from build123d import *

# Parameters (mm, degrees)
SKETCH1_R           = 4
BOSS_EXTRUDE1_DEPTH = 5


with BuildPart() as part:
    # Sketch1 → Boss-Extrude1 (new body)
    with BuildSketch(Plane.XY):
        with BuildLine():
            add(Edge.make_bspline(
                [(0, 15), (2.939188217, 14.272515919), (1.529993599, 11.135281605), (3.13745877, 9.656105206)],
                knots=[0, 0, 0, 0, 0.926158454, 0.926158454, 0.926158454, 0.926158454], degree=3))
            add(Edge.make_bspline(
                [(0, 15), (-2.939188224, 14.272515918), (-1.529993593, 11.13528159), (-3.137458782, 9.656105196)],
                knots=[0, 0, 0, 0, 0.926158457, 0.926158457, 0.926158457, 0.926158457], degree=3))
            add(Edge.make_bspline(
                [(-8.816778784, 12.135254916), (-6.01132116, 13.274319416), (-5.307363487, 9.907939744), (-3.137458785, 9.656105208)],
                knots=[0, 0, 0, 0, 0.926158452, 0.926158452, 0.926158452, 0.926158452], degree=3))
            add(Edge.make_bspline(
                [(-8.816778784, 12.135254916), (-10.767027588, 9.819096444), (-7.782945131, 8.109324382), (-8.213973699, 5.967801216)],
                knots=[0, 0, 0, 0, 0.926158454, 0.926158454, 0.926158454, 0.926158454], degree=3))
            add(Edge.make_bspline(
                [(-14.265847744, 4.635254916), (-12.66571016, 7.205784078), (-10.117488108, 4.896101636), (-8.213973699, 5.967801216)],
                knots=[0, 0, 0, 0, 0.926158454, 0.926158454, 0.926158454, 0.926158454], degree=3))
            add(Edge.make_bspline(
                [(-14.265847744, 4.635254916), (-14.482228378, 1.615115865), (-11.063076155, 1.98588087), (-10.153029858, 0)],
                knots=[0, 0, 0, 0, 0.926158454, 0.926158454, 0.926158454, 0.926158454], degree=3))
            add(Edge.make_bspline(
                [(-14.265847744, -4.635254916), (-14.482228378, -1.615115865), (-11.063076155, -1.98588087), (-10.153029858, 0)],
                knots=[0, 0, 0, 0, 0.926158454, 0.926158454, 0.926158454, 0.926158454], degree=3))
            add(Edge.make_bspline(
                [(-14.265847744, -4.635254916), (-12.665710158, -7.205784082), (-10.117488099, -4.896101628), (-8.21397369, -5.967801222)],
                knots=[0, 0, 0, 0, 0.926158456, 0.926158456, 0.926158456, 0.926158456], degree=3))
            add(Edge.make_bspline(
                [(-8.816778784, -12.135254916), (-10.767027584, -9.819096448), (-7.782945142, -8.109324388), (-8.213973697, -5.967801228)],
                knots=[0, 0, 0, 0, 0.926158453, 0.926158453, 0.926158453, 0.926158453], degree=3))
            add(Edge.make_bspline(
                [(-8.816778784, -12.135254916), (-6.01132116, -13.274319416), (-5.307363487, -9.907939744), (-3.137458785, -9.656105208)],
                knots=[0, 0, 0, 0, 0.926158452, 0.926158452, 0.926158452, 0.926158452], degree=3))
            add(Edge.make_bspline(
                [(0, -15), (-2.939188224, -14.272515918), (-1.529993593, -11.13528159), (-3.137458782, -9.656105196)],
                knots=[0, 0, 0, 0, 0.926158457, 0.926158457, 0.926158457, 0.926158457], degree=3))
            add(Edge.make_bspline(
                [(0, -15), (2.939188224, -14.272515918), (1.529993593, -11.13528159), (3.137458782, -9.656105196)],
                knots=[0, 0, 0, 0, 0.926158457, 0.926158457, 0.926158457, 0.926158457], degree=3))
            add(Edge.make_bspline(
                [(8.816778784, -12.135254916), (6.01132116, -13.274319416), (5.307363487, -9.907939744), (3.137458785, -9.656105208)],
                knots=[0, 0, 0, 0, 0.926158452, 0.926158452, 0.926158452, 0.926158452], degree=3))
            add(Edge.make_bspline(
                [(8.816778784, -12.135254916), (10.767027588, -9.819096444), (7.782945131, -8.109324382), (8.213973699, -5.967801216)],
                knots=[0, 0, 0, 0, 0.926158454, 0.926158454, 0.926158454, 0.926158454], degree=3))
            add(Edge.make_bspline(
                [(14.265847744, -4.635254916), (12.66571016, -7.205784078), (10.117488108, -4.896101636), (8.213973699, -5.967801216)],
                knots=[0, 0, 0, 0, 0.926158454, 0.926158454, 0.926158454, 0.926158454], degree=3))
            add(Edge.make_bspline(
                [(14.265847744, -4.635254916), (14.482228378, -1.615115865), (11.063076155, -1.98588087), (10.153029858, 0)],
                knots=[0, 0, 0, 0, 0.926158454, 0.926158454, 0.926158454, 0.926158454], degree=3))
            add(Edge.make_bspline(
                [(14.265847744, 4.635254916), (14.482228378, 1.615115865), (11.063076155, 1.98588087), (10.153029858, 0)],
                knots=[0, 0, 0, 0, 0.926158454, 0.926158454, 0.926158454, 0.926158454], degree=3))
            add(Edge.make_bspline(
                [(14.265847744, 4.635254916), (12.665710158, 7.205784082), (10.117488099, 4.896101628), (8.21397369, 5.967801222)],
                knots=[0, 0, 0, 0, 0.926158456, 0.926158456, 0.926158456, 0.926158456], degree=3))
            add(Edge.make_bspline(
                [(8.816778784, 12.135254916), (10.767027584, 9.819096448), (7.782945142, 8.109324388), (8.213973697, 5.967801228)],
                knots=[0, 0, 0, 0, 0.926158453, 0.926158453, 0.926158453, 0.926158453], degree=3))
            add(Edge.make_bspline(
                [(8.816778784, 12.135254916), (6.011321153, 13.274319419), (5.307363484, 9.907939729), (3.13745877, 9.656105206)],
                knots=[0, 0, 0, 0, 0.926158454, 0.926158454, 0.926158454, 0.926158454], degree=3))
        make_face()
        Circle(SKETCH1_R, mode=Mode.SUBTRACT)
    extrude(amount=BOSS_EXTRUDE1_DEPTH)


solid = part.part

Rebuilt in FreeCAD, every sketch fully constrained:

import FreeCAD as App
import Part
import Sketcher

doc = App.newDocument("Part")
body = doc.addObject("PartDesign::Body", "Body")

# Sketch on XY plane
sketch1 = body.newObject("Sketcher::SketchObject", "Sketch")
sketch1.AttachmentSupport = (doc.getObject("XY_Plane"), [""])
sketch1.MapMode = "FlatFace"
sketch1.addGeometry([
    Part.BSplineCurve([App.Vector(0, 15, 0), App.Vector(2.939188, 14.272516, 0), App.Vector(1.529994, 11.135282, 0), App.Vector(3.137459, 9.656105, 0)], [4, 4], [0, 0.926158454], False, 3, [1, 1, 1, 1], False),  # 0
    Part.BSplineCurve([App.Vector(0, 15, 0), App.Vector(-2.939188, 14.272516, 0), App.Vector(-1.529994, 11.135282, 0), App.Vector(-3.137459, 9.656105, 0)], [4, 4], [0, 0.926158457], False, 3, [1, 1, 1, 1], False),  # 1
    Part.BSplineCurve([App.Vector(-8.816779, 12.135255, 0), App.Vector(-6.011321, 13.274319, 0), App.Vector(-5.307363, 9.90794, 0), App.Vector(-3.137459, 9.656105, 0)], [4, 4], [0, 0.926158452], False, 3, [1, 1, 1, 1], False),  # 2
    Part.BSplineCurve([App.Vector(-8.816779, 12.135255, 0), App.Vector(-10.767028, 9.819096, 0), App.Vector(-7.782945, 8.109324, 0), App.Vector(-8.213974, 5.967801, 0)], [4, 4], [0, 0.926158454], False, 3, [1, 1, 1, 1], False),  # 3
    Part.BSplineCurve([App.Vector(-14.265848, 4.635255, 0), App.Vector(-12.66571, 7.205784, 0), App.Vector(-10.117488, 4.896102, 0), App.Vector(-8.213974, 5.967801, 0)], [4, 4], [0, 0.926158454], False, 3, [1, 1, 1, 1], False),  # 4
    Part.BSplineCurve([App.Vector(-14.265848, 4.635255, 0), App.Vector(-14.482228, 1.615116, 0), App.Vector(-11.063076, 1.985881, 0), App.Vector(-10.15303, 0, 0)], [4, 4], [0, 0.926158454], False, 3, [1, 1, 1, 1], False),  # 5
    Part.BSplineCurve([App.Vector(-14.265848, -4.635255, 0), App.Vector(-14.482228, -1.615116, 0), App.Vector(-11.063076, -1.985881, 0), App.Vector(-10.15303, 0, 0)], [4, 4], [0, 0.926158454], False, 3, [1, 1, 1, 1], False),  # 6
    Part.BSplineCurve([App.Vector(-14.265848, -4.635255, 0), App.Vector(-12.66571, -7.205784, 0), App.Vector(-10.117488, -4.896102, 0), App.Vector(-8.213974, -5.967801, 0)], [4, 4], [0, 0.926158456], False, 3, [1, 1, 1, 1], False),  # 7
    Part.BSplineCurve([App.Vector(-8.816779, -12.135255, 0), App.Vector(-10.767028, -9.819096, 0), App.Vector(-7.782945, -8.109324, 0), App.Vector(-8.213974, -5.967801, 0)], [4, 4], [0, 0.926158453], False, 3, [1, 1, 1, 1], False),  # 8
    Part.BSplineCurve([App.Vector(-8.816779, -12.135255, 0), App.Vector(-6.011321, -13.274319, 0), App.Vector(-5.307363, -9.90794, 0), App.Vector(-3.137459, -9.656105, 0)], [4, 4], [0, 0.926158452], False, 3, [1, 1, 1, 1], False),  # 9
    Part.BSplineCurve([App.Vector(0, -15, 0), App.Vector(-2.939188, -14.272516, 0), App.Vector(-1.529994, -11.135282, 0), App.Vector(-3.137459, -9.656105, 0)], [4, 4], [0, 0.926158457], False, 3, [1, 1, 1, 1], False),  # 10
    Part.BSplineCurve([App.Vector(0, -15, 0), App.Vector(2.939188, -14.272516, 0), App.Vector(1.529994, -11.135282, 0), App.Vector(3.137459, -9.656105, 0)], [4, 4], [0, 0.926158457], False, 3, [1, 1, 1, 1], False),  # 11
    Part.BSplineCurve([App.Vector(8.816779, -12.135255, 0), App.Vector(6.011321, -13.274319, 0), App.Vector(5.307363, -9.90794, 0), App.Vector(3.137459, -9.656105, 0)], [4, 4], [0, 0.926158452], False, 3, [1, 1, 1, 1], False),  # 12
    Part.BSplineCurve([App.Vector(8.816779, -12.135255, 0), App.Vector(10.767028, -9.819096, 0), App.Vector(7.782945, -8.109324, 0), App.Vector(8.213974, -5.967801, 0)], [4, 4], [0, 0.926158454], False, 3, [1, 1, 1, 1], False),  # 13
    Part.BSplineCurve([App.Vector(14.265848, -4.635255, 0), App.Vector(12.66571, -7.205784, 0), App.Vector(10.117488, -4.896102, 0), App.Vector(8.213974, -5.967801, 0)], [4, 4], [0, 0.926158454], False, 3, [1, 1, 1, 1], False),  # 14
    Part.BSplineCurve([App.Vector(14.265848, -4.635255, 0), App.Vector(14.482228, -1.615116, 0), App.Vector(11.063076, -1.985881, 0), App.Vector(10.15303, 0, 0)], [4, 4], [0, 0.926158454], False, 3, [1, 1, 1, 1], False),  # 15
    Part.BSplineCurve([App.Vector(14.265848, 4.635255, 0), App.Vector(14.482228, 1.615116, 0), App.Vector(11.063076, 1.985881, 0), App.Vector(10.15303, 0, 0)], [4, 4], [0, 0.926158454], False, 3, [1, 1, 1, 1], False),  # 16
    Part.BSplineCurve([App.Vector(14.265848, 4.635255, 0), App.Vector(12.66571, 7.205784, 0), App.Vector(10.117488, 4.896102, 0), App.Vector(8.213974, 5.967801, 0)], [4, 4], [0, 0.926158456], False, 3, [1, 1, 1, 1], False),  # 17
    Part.BSplineCurve([App.Vector(8.816779, 12.135255, 0), App.Vector(10.767028, 9.819096, 0), App.Vector(7.782945, 8.109324, 0), App.Vector(8.213974, 5.967801, 0)], [4, 4], [0, 0.926158453], False, 3, [1, 1, 1, 1], False),  # 18
    Part.BSplineCurve([App.Vector(8.816779, 12.135255, 0), App.Vector(6.011321, 13.274319, 0), App.Vector(5.307363, 9.90794, 0), App.Vector(3.137459, 9.656105, 0)], [4, 4], [0, 0.926158454], False, 3, [1, 1, 1, 1], False),  # 19
    Part.Circle(App.Vector(0, 0, 0), App.Vector(0, 0, 1), 4),  # 20
], False)
sketch1.addConstraint([
    Sketcher.Constraint("Block", 0),
    Sketcher.Constraint("Block", 1),
    Sketcher.Constraint("Block", 2),
    Sketcher.Constraint("Block", 3),
    Sketcher.Constraint("Block", 4),
    Sketcher.Constraint("Block", 5),
    Sketcher.Constraint("Block", 6),
    Sketcher.Constraint("Block", 7),
    Sketcher.Constraint("Block", 8),
    Sketcher.Constraint("Block", 9),
    Sketcher.Constraint("Block", 10),
    Sketcher.Constraint("Block", 11),
    Sketcher.Constraint("Block", 12),
    Sketcher.Constraint("Block", 13),
    Sketcher.Constraint("Block", 14),
    Sketcher.Constraint("Block", 15),
    Sketcher.Constraint("Block", 16),
    Sketcher.Constraint("Block", 17),
    Sketcher.Constraint("Block", 18),
    Sketcher.Constraint("Block", 19),
    Sketcher.Constraint("Coincident", 20, 3, -1, 1),
    Sketcher.Constraint("Diameter", 20, 8.0),
])
pad1 = body.newObject("PartDesign::Pad", "Pad")
pad1.Profile = sketch1
pad1.Length = 5

doc.recompute()
